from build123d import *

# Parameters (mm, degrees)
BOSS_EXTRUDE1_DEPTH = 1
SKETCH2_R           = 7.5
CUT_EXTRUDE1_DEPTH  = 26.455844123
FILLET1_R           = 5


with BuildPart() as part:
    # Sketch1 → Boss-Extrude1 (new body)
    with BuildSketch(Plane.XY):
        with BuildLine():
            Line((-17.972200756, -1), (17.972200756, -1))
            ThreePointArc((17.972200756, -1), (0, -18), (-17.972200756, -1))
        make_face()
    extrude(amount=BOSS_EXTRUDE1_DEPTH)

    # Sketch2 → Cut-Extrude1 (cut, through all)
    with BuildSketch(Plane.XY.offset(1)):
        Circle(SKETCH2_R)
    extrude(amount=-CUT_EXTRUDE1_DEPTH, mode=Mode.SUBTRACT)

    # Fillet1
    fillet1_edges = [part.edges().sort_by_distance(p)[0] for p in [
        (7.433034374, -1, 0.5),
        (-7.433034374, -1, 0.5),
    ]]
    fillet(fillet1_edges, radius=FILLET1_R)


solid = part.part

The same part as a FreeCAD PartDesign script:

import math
import FreeCAD as App
import Part
import Sketcher
Q = App.Units.Quantity


def edges_at(feature, points):
    """Names of the edges that pass closest to the given points."""
    edges = feature.Shape.Edges
    near = lambda p: min(range(len(edges)), key=lambda i: edges[i].distToShape(Part.Vertex(*p))[0])
    return sorted({f"Edge{near(p) + 1}" for p in points})

doc = App.newDocument("Part")
params = doc.addObject("Spreadsheet::Sheet", "Params")
for row, (alias, value) in enumerate([
    ("sketch1_radius", "18 mm"),
    ("pad1_length", "1 mm"),
    ("sketch2_diameter", "15 mm"),
    ("fillet_radius", "5 mm"),
], start=1):
    params.set(f"A{row}", alias)
    params.set(f"B{row}", "=" + value)
    params.setAlias(f"B{row}", alias)

body = doc.addObject("PartDesign::Body", "Body")

sketch1 = body.newObject("Sketcher::SketchObject", "Sketch")
sketch1.AttachmentSupport = (doc.getObject("XY_Plane"), [""])
sketch1.MapMode = "FlatFace"
sketch1.addGeometry([
    Part.LineSegment(App.Vector(18, -1, 0), App.Vector(-18, -1, 0)),
    Part.ArcOfCircle(Part.Circle(App.Vector(0, 0, 0), App.Vector(0, 0, 1), 18), math.radians(-177), math.radians(-3)),
], False)
sketch1.addConstraint([
    Sketcher.Constraint("Coincident", 0, 1, 1, 2),
    Sketcher.Constraint("Coincident", 1, 1, 0, 2),
    Sketcher.Constraint("Horizontal", 0),
    Sketcher.Constraint("Coincident", 1, 3, -1, 1),
    Sketcher.Constraint("Radius", 1, Q("18 mm")),
    Sketcher.Constraint("DistanceY", 0, 1, -1, 1, Q("1 mm")),
])
sketch1.setExpression("Constraints[4]", "Params.sketch1_radius")
pad1 = body.newObject("PartDesign::Pad", "Pad")
pad1.Profile = sketch1
pad1.setExpression("Length", "Params.pad1_length")

sketch2 = body.newObject("Sketcher::SketchObject", "Sketch001")
sketch2.AttachmentSupport = (doc.getObject("XY_Plane"), [""])
sketch2.MapMode = "FlatFace"
sketch2.AttachmentOffset = App.Placement(App.Vector(0, 0, 1), App.Rotation())
sketch2.addGeometry(Part.Circle(App.Vector(0, 0, 0), App.Vector(0, 0, 1), 8), False)
sketch2.addConstraint([
    Sketcher.Constraint("Coincident", 0, 3, -1, 1),
    Sketcher.Constraint("Diameter", 0, Q("15 mm")),
])
sketch2.setExpression("Constraints[1]", "Params.sketch2_diameter")
pocket1 = body.newObject("PartDesign::Pocket", "Pocket")
pocket1.Profile = sketch2
pocket1.Type = "ThroughAll"
doc.recompute()

fillet = body.newObject("PartDesign::Fillet", "Fillet")
fillet.Base = (pocket1, edges_at(pocket1, [(7.433, -1, 0.5), (-7.433, -1, 0.5)]))
fillet.setExpression("Radius", "Params.fillet_radius")

doc.recompute()
